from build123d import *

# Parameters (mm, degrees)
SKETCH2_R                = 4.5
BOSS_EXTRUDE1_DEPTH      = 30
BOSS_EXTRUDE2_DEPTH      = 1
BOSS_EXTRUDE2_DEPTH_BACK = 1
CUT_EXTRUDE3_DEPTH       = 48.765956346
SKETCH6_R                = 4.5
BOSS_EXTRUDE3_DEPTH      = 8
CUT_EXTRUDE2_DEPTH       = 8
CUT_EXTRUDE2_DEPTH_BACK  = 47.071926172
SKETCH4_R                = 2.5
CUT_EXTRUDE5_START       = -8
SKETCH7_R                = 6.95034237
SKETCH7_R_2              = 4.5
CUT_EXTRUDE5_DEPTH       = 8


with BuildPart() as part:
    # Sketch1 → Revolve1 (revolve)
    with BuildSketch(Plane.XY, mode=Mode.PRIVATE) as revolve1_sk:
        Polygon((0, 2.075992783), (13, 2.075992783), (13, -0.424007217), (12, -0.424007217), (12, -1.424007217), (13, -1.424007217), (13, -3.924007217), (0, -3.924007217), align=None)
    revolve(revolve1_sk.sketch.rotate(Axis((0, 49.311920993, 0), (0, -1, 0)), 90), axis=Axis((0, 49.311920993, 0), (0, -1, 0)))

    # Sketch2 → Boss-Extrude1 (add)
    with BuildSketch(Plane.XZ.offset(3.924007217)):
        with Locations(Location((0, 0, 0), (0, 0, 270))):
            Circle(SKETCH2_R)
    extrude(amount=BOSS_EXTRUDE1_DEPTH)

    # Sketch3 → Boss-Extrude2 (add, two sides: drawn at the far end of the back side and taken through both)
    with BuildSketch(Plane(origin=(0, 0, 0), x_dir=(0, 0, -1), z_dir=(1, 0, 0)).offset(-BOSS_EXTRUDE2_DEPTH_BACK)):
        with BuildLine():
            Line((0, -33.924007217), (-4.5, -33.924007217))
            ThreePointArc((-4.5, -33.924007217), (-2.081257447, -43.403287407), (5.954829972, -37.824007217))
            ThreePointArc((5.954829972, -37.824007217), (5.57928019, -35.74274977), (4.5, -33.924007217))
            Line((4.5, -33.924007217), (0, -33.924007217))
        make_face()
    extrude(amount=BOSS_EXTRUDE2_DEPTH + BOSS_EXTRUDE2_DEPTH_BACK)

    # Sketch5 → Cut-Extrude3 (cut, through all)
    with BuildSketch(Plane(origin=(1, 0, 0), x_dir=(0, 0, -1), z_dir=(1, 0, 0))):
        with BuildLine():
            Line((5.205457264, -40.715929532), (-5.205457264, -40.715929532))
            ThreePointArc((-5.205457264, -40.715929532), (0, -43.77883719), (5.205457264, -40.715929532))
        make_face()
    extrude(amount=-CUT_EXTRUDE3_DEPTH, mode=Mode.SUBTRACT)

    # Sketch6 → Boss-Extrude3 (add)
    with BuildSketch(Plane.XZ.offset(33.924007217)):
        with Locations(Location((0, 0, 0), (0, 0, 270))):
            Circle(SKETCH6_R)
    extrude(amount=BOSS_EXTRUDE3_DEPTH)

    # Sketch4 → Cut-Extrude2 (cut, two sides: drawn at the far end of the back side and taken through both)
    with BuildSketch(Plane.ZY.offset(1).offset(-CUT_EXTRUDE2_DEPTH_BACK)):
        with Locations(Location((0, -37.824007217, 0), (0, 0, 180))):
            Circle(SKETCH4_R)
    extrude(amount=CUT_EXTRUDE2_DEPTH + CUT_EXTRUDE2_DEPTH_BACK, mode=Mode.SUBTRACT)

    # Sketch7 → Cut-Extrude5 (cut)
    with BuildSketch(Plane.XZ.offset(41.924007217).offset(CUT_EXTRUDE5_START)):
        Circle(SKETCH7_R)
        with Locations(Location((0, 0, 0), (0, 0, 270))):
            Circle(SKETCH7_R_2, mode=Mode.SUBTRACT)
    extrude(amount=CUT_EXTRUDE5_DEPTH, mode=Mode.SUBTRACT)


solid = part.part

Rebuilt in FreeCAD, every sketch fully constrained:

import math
import FreeCAD as App
import Part
import Sketcher
from FreeCAD import Vector


def add_polygon(sketch, points):
    """Adds a closed chain of lines whose ends are joined by coincident constraints."""
    first, n = sketch.GeometryCount, len(points)
    for a, b in zip(points, points[1:] + points[:1]):
        sketch.addGeometry(Part.LineSegment(App.Vector(*a, 0), App.Vector(*b, 0)), False)
    for i in range(n):
        sketch.addConstraint(Sketcher.Constraint("Coincident", first + i, 2, first + (i + 1) % n, 1))

doc = App.newDocument("Part")
body = doc.addObject("PartDesign::Body", "Body")

# Sketch on XY plane
sketch1 = doc.addObject("Sketcher::SketchObject", "Sketch")
body.addObject(sketch1)
sketch1.AttachmentSupport = (doc.XY_Plane, [""])
sketch1.MapMode = "FlatFace"
add_polygon(sketch1, [(13, 2.1), (0, 2.1), (0, -3.9), (13, -3.9), (13, -1.4), (12, -1.4), (12, -0.4), (13, -0.4)])  # lines 0-7
sketch1.addConstraint([
    Sketcher.Constraint("Horizontal", 0),
    Sketcher.Constraint("Vertical", 1),
    Sketcher.Constraint("Horizontal", 2),
    Sketcher.Constraint("Vertical", 3),
    Sketcher.Constraint("Horizontal", 4),
    Sketcher.Constraint("Vertical", 5),
    Sketcher.Constraint("Horizontal", 6),
    Sketcher.Constraint("Vertical", 7),
    Sketcher.Constraint("PointOnObject", 0, 2, -2),
    Sketcher.Constraint("Vertical", 3, 2, 6, 2),
    Sketcher.Constraint("Equal", 6, 5),
    Sketcher.Constraint("Equal", 3, 7),
    Sketcher.Constraint("DistanceX", 0, 2, 0, 1, 13.0),
    Sketcher.Constraint("DistanceX", 4, 2, 4, 1, 1.0),
    Sketcher.Constraint("DistanceY", 1, 2, 1, 1, 6.0),
    Sketcher.Constraint("DistanceY", -1, 1, 0, 2, 2.075993),
])
revolution = doc.addObject("PartDesign::Revolution", "Revolution")
body.addObject(revolution)
revolution.Profile = sketch1
revolution.ReferenceAxis = (sketch1, ["V_Axis"])
revolution.Angle = 360

# Sketch on XZ plane
sketch2 = doc.addObject("Sketcher::SketchObject", "Sketch001")
body.addObject(sketch2)
sketch2.AttachmentSupport = (doc.XZ_Plane, [""])
sketch2.MapMode = "FlatFace"
sketch2.AttachmentOffset = App.Placement(Vector(0, 0, 3.924007), App.Rotation())
sketch2.addGeometry(Part.Circle(Vector(0, 0, 0), Vector(0, 0, 1), 4.5), False)
sketch2.addConstraint([
    Sketcher.Constraint("Coincident", 0, 3, -1, 1),
    Sketcher.Constraint("Diameter", 0, 9.0),
])
pad1 = doc.addObject("PartDesign::Pad", "Pad")
body.addObject(pad1)
pad1.Profile = sketch2
pad1.Length = 30

# Sketch on YZ plane
sketch3 = doc.addObject("Sketcher::SketchObject", "Sketch002")
body.addObject(sketch3)
sketch3.AttachmentSupport = (doc.YZ_Plane, [""])
sketch3.MapMode = "FlatFace"
sketch3.addGeometry([
    Part.ArcOfCircle(Part.Circle(Vector(-37.8, 0, 0), Vector(0, 0, 1), 6), math.radians(49), math.radians(270)),
    Part.ArcOfCircle(Part.Circle(Vector(-37.8, 0, 0), Vector(0, 0, 1), 6), math.radians(-90), math.radians(-49)),
    Part.LineSegment(Vector(-33.9, -4.5, 0), Vector(-33.9, 4.5, 0)),
], False)
sketch3.addConstraint([
    Sketcher.Constraint("Tangent", 0, 2, 1, 1),
    Sketcher.Constraint("Coincident", 1, 2, 2, 1),
    Sketcher.Constraint("Coincident", 2, 2, 0, 1),
    Sketcher.Constraint("Vertical", 2),
    Sketcher.Constraint("Equal", 0, 1),
    Sketcher.Constraint("PointOnObject", 0, 3, -1),
    Sketcher.Constraint("Vertical", 1, 3, 0, 2),
    Sketcher.Constraint("DistanceY", 2, 1, 2, 2, 9.0),
    Sketcher.Constraint("DistanceX", 0, 2, 1, 2, 3.9),
    Sketcher.Constraint("DistanceX", 0, 3, -1, 1, 37.824007),
])
pad2 = doc.addObject("PartDesign::Pad", "Pad001")
body.addObject(pad2)
pad2.Profile = sketch3
pad2.Type = "TwoLengths"
pad2.Length = 1
pad2.Length2 = 1

# Sketch on YZ plane
sketch4 = doc.addObject("Sketcher::SketchObject", "Sketch003")
body.addObject(sketch4)
sketch4.AttachmentSupport = (doc.YZ_Plane, [""])
sketch4.MapMode = "FlatFace"
sketch4.AttachmentOffset = App.Placement(Vector(0, 0, 1), App.Rotation())
sketch4.addGeometry([
    Part.LineSegment(Vector(-41, -5, 0), Vector(-41, 5, 0)),
    Part.ArcOfCircle(Part.Circle(Vector(-38, 0, 0), Vector(0, 0, 1), 6), math.radians(119), math.radians(241)),
], False)
sketch4.addConstraint([
    Sketcher.Constraint("Coincident", 0, 1, 1, 2),
    Sketcher.Constraint("Coincident", 1, 1, 0, 2),
    Sketcher.Constraint("Vertical", 0),
    Sketcher.Constraint("PointOnObject", 1, 3, -1),
    Sketcher.Constraint("Radius", 1, 5.95483),
    Sketcher.Constraint("DistanceY", 0, 1, 0, 2, 10.410915),
    Sketcher.Constraint("DistanceX", 0, 1, -1, 1, 40.71593),
])
pocket1 = doc.addObject("PartDesign::Pocket", "Pocket")
body.addObject(pocket1)
pocket1.Profile = sketch4
pocket1.Type = "ThroughAll"

# Sketch on XZ plane
sketch5 = doc.addObject("Sketcher::SketchObject", "Sketch004")
body.addObject(sketch5)
sketch5.AttachmentSupport = (doc.XZ_Plane, [""])
sketch5.MapMode = "FlatFace"
sketch5.AttachmentOffset = App.Placement(Vector(0, 0, 33.924007), App.Rotation())
sketch5.addGeometry(Part.Circle(Vector(0, 0, 0), Vector(0, 0, 1), 4.5), False)
sketch5.addConstraint([
    Sketcher.Constraint("Coincident", 0, 3, -1, 1),
    Sketcher.Constraint("Diameter", 0, 9.0),
])
pad3 = doc.addObject("PartDesign::Pad", "Pad002")
body.addObject(pad3)
pad3.Profile = sketch5
pad3.Length = 8

# Sketch on YZ plane
sketch6 = doc.addObject("Sketcher::SketchObject", "Sketch005")
body.addObject(sketch6)
sketch6.AttachmentSupport = (doc.YZ_Plane, [""])
sketch6.MapMode = "FlatFace"
sketch6.AttachmentOffset = App.Placement(Vector(0, 0, -1), App.Rotation())
sketch6.addGeometry(Part.Circle(Vector(-37.8, 0, 0), Vector(0, 0, 1), 2.5), False)
sketch6.addConstraint([
    Sketcher.Constraint("PointOnObject", 0, 3, -1),
    Sketcher.Constraint("Diameter", 0, 5.0),
    Sketcher.Constraint("DistanceX", 0, 3, -1, 1, 37.824007),
])
pocket2 = doc.addObject("PartDesign::Pocket", "Pocket001")
body.addObject(pocket2)
pocket2.Profile = sketch6
pocket2.Type = "ThroughAll"
pocket2.Midplane = True

# Sketch on XZ plane
sketch7 = doc.addObject("Sketcher::SketchObject", "Sketch006")
body.addObject(sketch7)
sketch7.AttachmentSupport = (doc.XZ_Plane, [""])
sketch7.MapMode = "FlatFace"
sketch7.AttachmentOffset = App.Placement(Vector(0, 0, 33.924007), App.Rotation())
sketch7.addGeometry([
    Part.Circle(Vector(0, 0, 0), Vector(0, 0, 1), 7),
    Part.Circle(Vector(0, 0, 0), Vector(0, 0, 1), 4.5),
], False)
sketch7.addConstraint([
    Sketcher.Constraint("Coincident", 0, 3, -1, 1),
    Sketcher.Constraint("Coincident", 1, 3, -1, 1),
    Sketcher.Constraint("Diameter", 1, 9.0),
    Sketcher.Constraint("Diameter", 0, 13.900685),
])
pocket3 = doc.addObject("PartDesign::Pocket", "Pocket002")
body.addObject(pocket3)
pocket3.Profile = sketch7
pocket3.Length = 8
pocket3.Reversed = True

doc.recompute()
